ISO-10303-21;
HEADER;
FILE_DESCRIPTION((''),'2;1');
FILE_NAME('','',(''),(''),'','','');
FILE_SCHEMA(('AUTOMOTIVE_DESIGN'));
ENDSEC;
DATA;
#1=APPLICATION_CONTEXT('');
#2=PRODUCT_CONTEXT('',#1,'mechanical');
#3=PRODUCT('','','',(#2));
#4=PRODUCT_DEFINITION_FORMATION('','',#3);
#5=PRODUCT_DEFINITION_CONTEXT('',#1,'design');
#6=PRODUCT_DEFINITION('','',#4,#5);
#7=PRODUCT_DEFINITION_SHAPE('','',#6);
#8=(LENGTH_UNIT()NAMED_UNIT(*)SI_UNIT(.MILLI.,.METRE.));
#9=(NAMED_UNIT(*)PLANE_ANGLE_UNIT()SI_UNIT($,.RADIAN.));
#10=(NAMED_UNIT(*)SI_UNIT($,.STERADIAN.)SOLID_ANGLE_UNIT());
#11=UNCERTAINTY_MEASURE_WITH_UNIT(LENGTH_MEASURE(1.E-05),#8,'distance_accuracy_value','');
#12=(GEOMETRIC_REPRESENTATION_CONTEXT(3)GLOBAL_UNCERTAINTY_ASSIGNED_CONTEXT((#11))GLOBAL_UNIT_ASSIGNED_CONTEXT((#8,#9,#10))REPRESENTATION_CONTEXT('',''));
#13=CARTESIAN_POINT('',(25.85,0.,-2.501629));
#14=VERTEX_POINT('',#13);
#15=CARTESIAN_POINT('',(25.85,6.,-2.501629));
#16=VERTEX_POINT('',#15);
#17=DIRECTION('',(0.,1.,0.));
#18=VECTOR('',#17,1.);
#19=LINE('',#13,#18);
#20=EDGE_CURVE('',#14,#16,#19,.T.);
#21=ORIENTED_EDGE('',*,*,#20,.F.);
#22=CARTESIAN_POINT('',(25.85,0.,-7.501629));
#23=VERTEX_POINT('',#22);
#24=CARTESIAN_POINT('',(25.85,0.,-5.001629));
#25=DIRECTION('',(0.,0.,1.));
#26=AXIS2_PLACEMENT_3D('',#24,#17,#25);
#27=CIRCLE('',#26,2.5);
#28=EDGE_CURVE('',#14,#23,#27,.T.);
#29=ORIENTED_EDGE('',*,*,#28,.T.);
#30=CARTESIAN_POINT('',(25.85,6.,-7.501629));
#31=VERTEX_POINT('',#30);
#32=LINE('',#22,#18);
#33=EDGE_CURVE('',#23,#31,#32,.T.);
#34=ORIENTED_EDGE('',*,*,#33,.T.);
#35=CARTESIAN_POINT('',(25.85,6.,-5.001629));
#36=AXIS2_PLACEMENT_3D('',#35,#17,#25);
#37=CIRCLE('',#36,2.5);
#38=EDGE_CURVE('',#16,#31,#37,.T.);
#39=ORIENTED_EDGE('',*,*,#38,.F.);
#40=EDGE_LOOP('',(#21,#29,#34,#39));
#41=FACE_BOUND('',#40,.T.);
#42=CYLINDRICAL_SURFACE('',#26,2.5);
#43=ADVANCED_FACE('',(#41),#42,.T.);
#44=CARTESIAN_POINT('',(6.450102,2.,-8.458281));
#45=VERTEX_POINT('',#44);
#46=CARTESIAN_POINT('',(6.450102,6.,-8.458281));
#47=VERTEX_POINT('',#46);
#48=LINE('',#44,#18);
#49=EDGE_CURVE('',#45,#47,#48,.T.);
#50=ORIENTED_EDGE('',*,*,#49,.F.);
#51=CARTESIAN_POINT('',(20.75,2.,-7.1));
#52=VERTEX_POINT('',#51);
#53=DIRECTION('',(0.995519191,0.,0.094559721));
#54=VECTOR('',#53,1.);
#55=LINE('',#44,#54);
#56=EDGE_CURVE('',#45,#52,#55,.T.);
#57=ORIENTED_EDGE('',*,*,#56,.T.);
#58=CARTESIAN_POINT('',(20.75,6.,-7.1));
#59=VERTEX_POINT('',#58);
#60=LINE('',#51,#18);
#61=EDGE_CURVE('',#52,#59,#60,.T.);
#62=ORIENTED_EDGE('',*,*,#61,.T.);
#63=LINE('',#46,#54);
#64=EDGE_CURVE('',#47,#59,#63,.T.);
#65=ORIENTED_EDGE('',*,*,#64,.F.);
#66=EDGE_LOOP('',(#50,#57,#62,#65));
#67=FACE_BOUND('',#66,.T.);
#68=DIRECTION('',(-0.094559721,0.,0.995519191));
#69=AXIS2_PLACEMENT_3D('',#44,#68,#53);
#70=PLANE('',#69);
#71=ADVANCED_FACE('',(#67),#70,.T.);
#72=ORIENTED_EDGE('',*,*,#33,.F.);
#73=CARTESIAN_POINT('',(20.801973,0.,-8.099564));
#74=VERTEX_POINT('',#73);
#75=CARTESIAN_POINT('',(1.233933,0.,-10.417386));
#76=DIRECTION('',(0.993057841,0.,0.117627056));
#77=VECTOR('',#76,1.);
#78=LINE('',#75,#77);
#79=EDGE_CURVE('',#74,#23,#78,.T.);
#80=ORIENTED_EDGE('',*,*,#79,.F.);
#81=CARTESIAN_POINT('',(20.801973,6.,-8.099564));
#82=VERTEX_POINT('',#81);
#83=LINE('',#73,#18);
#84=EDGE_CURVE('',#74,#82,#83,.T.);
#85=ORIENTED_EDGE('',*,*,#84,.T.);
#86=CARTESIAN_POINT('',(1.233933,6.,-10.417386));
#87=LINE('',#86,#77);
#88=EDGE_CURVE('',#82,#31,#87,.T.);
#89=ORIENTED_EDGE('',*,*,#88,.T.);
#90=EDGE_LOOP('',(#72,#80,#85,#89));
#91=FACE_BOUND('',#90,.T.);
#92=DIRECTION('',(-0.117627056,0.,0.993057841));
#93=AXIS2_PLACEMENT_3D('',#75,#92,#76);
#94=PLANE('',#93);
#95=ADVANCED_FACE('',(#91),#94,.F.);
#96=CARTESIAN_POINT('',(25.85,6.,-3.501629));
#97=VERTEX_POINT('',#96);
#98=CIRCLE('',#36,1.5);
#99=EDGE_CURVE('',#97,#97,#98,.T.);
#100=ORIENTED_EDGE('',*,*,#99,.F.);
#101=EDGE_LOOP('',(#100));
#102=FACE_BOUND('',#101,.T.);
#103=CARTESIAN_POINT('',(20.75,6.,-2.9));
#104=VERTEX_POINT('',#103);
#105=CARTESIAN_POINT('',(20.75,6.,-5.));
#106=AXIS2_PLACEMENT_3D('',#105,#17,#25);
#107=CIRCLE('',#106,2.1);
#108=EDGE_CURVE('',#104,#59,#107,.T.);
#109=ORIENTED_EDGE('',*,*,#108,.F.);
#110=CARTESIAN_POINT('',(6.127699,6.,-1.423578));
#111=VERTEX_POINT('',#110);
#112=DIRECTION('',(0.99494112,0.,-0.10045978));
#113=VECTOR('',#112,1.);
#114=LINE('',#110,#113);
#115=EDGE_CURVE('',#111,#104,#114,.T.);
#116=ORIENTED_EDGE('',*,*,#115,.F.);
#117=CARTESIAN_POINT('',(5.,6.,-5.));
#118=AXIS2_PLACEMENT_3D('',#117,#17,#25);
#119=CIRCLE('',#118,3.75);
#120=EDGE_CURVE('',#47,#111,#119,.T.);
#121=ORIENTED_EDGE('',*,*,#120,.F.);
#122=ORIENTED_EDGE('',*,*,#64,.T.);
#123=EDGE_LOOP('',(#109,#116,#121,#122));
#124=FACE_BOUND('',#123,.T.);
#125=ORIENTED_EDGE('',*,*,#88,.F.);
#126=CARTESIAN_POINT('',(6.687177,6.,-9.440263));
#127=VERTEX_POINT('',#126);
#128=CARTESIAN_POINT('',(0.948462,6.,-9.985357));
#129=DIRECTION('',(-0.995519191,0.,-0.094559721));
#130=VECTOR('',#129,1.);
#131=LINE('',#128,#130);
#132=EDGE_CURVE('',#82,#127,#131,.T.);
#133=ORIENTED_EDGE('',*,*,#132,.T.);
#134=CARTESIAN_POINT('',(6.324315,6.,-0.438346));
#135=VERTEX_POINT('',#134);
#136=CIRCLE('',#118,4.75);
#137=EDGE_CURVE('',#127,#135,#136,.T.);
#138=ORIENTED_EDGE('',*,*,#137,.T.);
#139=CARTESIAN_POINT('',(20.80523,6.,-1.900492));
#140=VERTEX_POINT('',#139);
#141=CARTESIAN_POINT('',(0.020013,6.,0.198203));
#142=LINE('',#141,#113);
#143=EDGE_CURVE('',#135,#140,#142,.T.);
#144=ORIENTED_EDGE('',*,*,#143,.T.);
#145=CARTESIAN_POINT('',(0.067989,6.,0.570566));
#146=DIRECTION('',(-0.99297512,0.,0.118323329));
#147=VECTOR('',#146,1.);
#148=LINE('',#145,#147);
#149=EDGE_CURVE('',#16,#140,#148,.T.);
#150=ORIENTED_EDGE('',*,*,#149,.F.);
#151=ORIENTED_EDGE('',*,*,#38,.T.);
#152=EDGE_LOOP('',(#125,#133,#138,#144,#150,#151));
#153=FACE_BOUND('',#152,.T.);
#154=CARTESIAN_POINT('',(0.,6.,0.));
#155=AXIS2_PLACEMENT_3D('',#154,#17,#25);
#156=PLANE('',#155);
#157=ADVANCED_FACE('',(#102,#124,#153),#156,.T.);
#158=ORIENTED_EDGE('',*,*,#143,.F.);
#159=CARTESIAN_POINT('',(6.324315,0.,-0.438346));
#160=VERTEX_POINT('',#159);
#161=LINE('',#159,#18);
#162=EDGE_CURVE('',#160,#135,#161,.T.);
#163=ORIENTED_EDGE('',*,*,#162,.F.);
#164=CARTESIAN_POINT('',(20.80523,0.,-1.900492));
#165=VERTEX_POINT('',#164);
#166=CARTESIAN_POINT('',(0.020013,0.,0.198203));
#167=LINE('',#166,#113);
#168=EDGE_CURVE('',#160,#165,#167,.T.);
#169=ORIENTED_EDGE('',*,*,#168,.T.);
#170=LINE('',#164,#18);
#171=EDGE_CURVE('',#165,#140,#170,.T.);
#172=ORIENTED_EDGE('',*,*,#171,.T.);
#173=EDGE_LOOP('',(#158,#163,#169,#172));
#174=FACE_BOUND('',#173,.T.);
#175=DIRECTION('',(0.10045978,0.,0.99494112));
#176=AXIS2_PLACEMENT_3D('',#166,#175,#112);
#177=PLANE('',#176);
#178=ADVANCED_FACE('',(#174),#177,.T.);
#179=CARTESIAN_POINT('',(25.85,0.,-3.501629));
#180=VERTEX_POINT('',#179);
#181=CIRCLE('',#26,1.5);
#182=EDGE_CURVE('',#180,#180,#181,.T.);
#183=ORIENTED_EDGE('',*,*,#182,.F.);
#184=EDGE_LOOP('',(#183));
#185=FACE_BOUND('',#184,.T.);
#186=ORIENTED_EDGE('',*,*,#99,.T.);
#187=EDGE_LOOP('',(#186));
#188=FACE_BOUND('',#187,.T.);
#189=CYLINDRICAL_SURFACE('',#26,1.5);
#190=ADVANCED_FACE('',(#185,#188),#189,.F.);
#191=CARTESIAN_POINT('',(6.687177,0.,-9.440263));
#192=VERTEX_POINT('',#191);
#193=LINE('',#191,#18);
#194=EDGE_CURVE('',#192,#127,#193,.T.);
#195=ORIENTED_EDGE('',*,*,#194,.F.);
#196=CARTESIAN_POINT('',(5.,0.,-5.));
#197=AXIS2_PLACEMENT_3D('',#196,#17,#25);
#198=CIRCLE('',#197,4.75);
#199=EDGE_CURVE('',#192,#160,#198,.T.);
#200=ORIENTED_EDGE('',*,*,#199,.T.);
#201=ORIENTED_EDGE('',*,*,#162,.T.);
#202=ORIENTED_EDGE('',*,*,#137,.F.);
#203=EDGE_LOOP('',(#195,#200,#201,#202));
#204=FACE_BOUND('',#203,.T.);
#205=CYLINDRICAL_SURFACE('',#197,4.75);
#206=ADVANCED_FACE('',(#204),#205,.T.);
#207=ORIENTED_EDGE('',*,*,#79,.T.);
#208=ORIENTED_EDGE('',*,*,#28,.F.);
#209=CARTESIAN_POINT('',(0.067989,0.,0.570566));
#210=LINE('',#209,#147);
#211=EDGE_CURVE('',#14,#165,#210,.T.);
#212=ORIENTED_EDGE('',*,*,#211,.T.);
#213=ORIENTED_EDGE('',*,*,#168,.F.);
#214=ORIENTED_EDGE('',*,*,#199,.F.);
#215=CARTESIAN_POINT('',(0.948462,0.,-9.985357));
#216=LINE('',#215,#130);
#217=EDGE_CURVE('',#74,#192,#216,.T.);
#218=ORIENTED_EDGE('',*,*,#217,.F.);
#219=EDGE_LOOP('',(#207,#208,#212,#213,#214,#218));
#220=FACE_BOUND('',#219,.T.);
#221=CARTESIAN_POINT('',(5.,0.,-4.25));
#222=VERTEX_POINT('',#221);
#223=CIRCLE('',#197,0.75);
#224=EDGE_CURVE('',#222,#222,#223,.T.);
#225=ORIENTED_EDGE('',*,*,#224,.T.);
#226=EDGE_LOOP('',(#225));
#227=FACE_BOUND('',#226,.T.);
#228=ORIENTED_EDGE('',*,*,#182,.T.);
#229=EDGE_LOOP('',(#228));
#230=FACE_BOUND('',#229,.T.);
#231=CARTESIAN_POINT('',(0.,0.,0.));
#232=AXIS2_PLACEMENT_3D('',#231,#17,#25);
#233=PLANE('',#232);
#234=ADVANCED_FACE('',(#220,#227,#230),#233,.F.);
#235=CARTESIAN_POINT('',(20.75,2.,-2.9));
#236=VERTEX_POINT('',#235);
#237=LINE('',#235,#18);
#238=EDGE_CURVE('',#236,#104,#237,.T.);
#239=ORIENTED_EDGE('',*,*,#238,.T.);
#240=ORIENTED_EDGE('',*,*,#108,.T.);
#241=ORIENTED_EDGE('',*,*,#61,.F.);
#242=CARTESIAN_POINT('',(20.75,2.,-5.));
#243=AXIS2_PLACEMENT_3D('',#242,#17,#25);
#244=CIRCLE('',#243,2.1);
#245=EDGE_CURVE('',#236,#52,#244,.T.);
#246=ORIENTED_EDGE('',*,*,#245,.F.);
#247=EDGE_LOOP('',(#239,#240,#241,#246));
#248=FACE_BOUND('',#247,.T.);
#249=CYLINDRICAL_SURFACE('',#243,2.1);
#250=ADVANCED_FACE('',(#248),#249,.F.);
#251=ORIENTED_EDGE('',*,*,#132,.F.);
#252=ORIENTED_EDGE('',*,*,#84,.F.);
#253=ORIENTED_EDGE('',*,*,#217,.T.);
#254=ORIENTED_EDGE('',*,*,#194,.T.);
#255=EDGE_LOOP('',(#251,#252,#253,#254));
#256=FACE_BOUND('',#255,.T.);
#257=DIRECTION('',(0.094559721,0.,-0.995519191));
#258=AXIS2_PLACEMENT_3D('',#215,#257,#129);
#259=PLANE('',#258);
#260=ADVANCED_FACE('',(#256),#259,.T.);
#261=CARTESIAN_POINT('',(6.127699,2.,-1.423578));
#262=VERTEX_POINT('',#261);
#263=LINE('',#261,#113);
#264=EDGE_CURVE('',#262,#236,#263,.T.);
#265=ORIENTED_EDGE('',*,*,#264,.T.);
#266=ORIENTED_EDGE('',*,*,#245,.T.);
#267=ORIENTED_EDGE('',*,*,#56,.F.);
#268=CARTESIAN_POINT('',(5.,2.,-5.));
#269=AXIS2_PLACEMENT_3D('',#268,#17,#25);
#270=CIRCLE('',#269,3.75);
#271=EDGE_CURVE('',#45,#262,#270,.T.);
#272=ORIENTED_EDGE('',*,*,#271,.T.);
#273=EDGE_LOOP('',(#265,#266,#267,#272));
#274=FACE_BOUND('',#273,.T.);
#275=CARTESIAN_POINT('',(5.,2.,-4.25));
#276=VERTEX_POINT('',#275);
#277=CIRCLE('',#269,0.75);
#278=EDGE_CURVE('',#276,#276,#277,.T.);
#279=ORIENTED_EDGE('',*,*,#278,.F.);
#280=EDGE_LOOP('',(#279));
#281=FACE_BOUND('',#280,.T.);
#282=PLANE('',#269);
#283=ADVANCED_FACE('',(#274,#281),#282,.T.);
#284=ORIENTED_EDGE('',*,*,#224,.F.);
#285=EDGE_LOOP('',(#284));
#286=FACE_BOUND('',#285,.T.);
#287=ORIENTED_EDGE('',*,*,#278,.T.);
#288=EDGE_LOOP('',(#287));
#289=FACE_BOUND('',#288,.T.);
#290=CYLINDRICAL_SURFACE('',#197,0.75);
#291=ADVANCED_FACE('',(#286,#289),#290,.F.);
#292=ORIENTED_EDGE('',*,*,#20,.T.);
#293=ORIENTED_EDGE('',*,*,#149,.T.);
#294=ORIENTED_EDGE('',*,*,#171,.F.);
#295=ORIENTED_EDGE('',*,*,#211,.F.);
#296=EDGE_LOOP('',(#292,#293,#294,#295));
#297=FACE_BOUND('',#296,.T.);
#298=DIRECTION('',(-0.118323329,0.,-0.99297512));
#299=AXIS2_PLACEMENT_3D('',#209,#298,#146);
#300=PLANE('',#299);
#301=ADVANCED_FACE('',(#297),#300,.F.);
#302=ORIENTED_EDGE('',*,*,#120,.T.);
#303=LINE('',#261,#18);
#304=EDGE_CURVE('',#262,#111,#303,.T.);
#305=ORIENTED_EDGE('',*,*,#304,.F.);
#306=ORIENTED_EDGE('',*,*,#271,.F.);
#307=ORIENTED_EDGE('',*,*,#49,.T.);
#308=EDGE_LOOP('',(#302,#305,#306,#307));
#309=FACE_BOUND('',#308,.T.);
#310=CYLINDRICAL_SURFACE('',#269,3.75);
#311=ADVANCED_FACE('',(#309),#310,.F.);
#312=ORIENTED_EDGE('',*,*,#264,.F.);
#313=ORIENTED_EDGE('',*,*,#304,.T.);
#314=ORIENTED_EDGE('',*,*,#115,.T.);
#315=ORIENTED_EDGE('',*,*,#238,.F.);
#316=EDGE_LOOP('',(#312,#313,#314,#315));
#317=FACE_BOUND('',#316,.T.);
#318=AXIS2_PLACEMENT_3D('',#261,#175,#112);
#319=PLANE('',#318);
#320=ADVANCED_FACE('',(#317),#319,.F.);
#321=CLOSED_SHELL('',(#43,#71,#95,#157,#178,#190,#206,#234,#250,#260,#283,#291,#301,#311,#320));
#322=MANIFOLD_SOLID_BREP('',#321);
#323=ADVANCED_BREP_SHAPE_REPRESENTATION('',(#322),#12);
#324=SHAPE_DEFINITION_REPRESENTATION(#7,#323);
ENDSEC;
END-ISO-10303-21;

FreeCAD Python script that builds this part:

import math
import FreeCAD as App
import Part
import Sketcher
from FreeCAD import Vector

doc = App.newDocument("Part")
params = doc.addObject("Spreadsheet::Sheet", "Params")
for row, (alias, value) in enumerate([
    ("sketch1_width", "30 mm"),
    ("sketch1_height", "10 mm"),
    ("pad1_length", "6 mm"),
    ("sketch2_radius", "2.1 mm"),
    ("sketch2_radius2", "3.75 mm"),
    ("pocket1_length", "4 mm"),
    ("sketch3_radius", "2.5 mm"),
    ("sketch3_width", "30 mm"),
    ("sketch3_height", "10 mm"),
    ("sketch3_radius2", "4.75 mm"),
    ("sketch4_diameter", "3 mm"),
    ("sketch5_diameter", "1.5 mm"),
], start=1):
    params.set(f"A{row}", alias)
    params.set(f"B{row}", "=" + value)
    params.setAlias(f"B{row}", alias)

body = doc.addObject("PartDesign::Body", "Body")

sketch1 = body.newObject("Sketcher::SketchObject", "Sketch")
sketch1.AttachmentSupport = (doc.getObject("XZ_Plane"), [""])
sketch1.MapMode = "FlatFace"
sketch1.addGeometry(Part.LineSegment(Vector(0, -10, 0), Vector(0, 0, 0)), False)
sketch1.addGeometry(Part.LineSegment(Vector(0, 0, 0), Vector(30, 0, 0)), False)
sketch1.addGeometry(Part.LineSegment(Vector(30, 0, 0), Vector(30, -10, 0)), False)
sketch1.addGeometry(Part.LineSegment(Vector(30, -10, 0), Vector(0, -10, 0)), False)
sketch1.addConstraint(Sketcher.Constraint("Coincident", 0, 2, 1, 1))
sketch1.addConstraint(Sketcher.Constraint("Coincident", 1, 2, 2, 1))
sketch1.addConstraint(Sketcher.Constraint("Coincident", 2, 2, 3, 1))
sketch1.addConstraint(Sketcher.Constraint("Coincident", 3, 2, 0, 1))
sketch1.addConstraint(Sketcher.Constraint("Vertical", 0))
sketch1.addConstraint(Sketcher.Constraint("Horizontal", 1))
sketch1.addConstraint(Sketcher.Constraint("Vertical", 2))
sketch1.addConstraint(Sketcher.Constraint("Horizontal", 3))
sketch1.addConstraint(Sketcher.Constraint("Coincident", 0, 2, -1, 1))
sketch1.addConstraint(Sketcher.Constraint("DistanceX", 1, 1, 1, 2, 30.0))
sketch1.addConstraint(Sketcher.Constraint("DistanceY", 0, 1, 0, 2, 10.0))
sketch1.setExpression("Constraints[9]", "Params.sketch1_width")
sketch1.setExpression("Constraints[10]", "Params.sketch1_height")
pad1 = body.newObject("PartDesign::Pad", "Pad")
pad1.Profile = sketch1
pad1.setExpression("Length", "Params.pad1_length")
pad1.Reversed = True

sketch2 = body.newObject("Sketcher::SketchObject", "Sketch001")
sketch2.AttachmentSupport = (doc.getObject("XZ_Plane"), [""])
sketch2.MapMode = "FlatFace"
sketch2.AttachmentOffset = App.Placement(Vector(0, 0, -6), App.Rotation())
sketch2.addGeometry(Part.LineSegment(Vector(6.1, -1.4, 0), Vector(20.8, -2.9, 0)), False)
sketch2.addGeometry(Part.ArcOfCircle(Part.Circle(Vector(20.8, -5, 0), Vector(0, 0, 1), 2.1), math.radians(-90), math.radians(90)), False)
sketch2.addGeometry(Part.LineSegment(Vector(20.8, -7.1, 0), Vector(6.5, -8.5, 0)), False)
sketch2.addGeometry(Part.ArcOfCircle(Part.Circle(Vector(5, -5, 0), Vector(0, 0, 1), 3.8), math.radians(72), math.radians(293)), False)
sketch2.addConstraint(Sketcher.Constraint("Coincident", 0, 2, 1, 2))
sketch2.addConstraint(Sketcher.Constraint("Coincident", 1, 1, 2, 1))
sketch2.addConstraint(Sketcher.Constraint("Coincident", 2, 2, 3, 2))
sketch2.addConstraint(Sketcher.Constraint("Coincident", 3, 1, 0, 1))
sketch2.addConstraint(Sketcher.Constraint("Horizontal", 1, 3, 3, 3))
sketch2.addConstraint(Sketcher.Constraint("Vertical", 1, 3, 0, 2))
sketch2.addConstraint(Sketcher.Constraint("Vertical", 0, 2, 1, 1))
sketch2.addConstraint(Sketcher.Constraint("Radius", 1, 2.1))
sketch2.addConstraint(Sketcher.Constraint("Radius", 3, 3.75))
sketch2.addConstraint(Sketcher.Constraint("DistanceY", 1, 3, -1, 1, 5.0))
sketch2.addConstraint(Sketcher.Constraint("DistanceX", -1, 1, 3, 3, 5.0))
sketch2.addConstraint(Sketcher.Constraint("DistanceX", -1, 1, 1, 3, 20.75))
sketch2.addConstraint(Sketcher.Constraint("DistanceX", -1, 1, 2, 2, 6.450102))
sketch2.addConstraint(Sketcher.Constraint("DistanceX", -1, 1, 3, 1, 6.127699))
sketch2.setExpression("Constraints[7]", "Params.sketch2_radius")
sketch2.setExpression("Constraints[8]", "Params.sketch2_radius2")
pocket1 = body.newObject("PartDesign::Pocket", "Pocket")
pocket1.Profile = sketch2
pocket1.setExpression("Length", "Params.pocket1_length")
pocket1.Reversed = True

sketch3 = body.newObject("Sketcher::SketchObject", "Sketch002")
sketch3.AttachmentSupport = (doc.getObject("XZ_Plane"), [""])
sketch3.MapMode = "FlatFace"
sketch3.AttachmentOffset = App.Placement(Vector(0, 0, -6), App.Rotation())
sketch3.addGeometry(Part.LineSegment(Vector(0, -10, 0), Vector(0, 0, 0)), False)
sketch3.addGeometry(Part.LineSegment(Vector(0, 0, 0), Vector(30, 0, 0)), False)
sketch3.addGeometry(Part.LineSegment(Vector(30, 0, 0), Vector(30, -10, 0)), False)
sketch3.addGeometry(Part.LineSegment(Vector(30, -10, 0), Vector(0, -10, 0)), False)
sketch3.addGeometry(Part.LineSegment(Vector(6.7, -9.4, 0), Vector(20.8, -8.1, 0)), False)
sketch3.addGeometry(Part.LineSegment(Vector(20.8, -8.1, 0), Vector(25.8, -7.5, 0)), False)
sketch3.addGeometry(Part.ArcOfCircle(Part.Circle(Vector(25.8, -5, 0), Vector(0, 0, 1), 2.5), math.radians(-90), math.radians(90)), False)
sketch3.addGeometry(Part.LineSegment(Vector(25.8, -2.5, 0), Vector(20.8, -1.9, 0)), False)
sketch3.addGeometry(Part.LineSegment(Vector(20.8, -1.9, 0), Vector(6.3, -0.4, 0)), False)
sketch3.addGeometry(Part.ArcOfCircle(Part.Circle(Vector(5, -5, 0), Vector(0, 0, 1), 4.8), math.radians(74), math.radians(291)), False)
sketch3.addConstraint(Sketcher.Constraint("Coincident", 0, 2, 1, 1))
sketch3.addConstraint(Sketcher.Constraint("Coincident", 1, 2, 2, 1))
sketch3.addConstraint(Sketcher.Constraint("Coincident", 2, 2, 3, 1))
sketch3.addConstraint(Sketcher.Constraint("Coincident", 3, 2, 0, 1))
sketch3.addConstraint(Sketcher.Constraint("Coincident", 4, 2, 5, 1))
sketch3.addConstraint(Sketcher.Constraint("Coincident", 5, 2, 6, 1))
sketch3.addConstraint(Sketcher.Constraint("Coincident", 6, 2, 7, 1))
sketch3.addConstraint(Sketcher.Constraint("Coincident", 7, 2, 8, 1))
sketch3.addConstraint(Sketcher.Constraint("Coincident", 8, 2, 9, 1))
sketch3.addConstraint(Sketcher.Constraint("Coincident", 9, 2, 4, 1))
sketch3.addConstraint(Sketcher.Constraint("Vertical", 0))
sketch3.addConstraint(Sketcher.Constraint("Horizontal", 1))
sketch3.addConstraint(Sketcher.Constraint("Vertical", 2))
sketch3.addConstraint(Sketcher.Constraint("Horizontal", 3))
sketch3.addConstraint(Sketcher.Constraint("Coincident", 0, 2, -1, 1))
sketch3.addConstraint(Sketcher.Constraint("Vertical", 6, 3, 5, 2))
sketch3.addConstraint(Sketcher.Constraint("Vertical", 5, 2, 6, 2))
sketch3.addConstraint(Sketcher.Constraint("Radius", 6, 2.5))
sketch3.addConstraint(Sketcher.Constraint("DistanceX", 1, 1, 1, 2, 30.0))
sketch3.addConstraint(Sketcher.Constraint("DistanceY", 0, 1, 0, 2, 10.0))
sketch3.addConstraint(Sketcher.Constraint("Radius", 9, 4.75))
sketch3.addConstraint(Sketcher.Constraint("DistanceX", -1, 1, 9, 3, 5.0))
sketch3.addConstraint(Sketcher.Constraint("DistanceY", 9, 3, -1, 1, 5.0))
sketch3.addConstraint(Sketcher.Constraint("DistanceX", -1, 1, 6, 3, 25.85))
sketch3.addConstraint(Sketcher.Constraint("DistanceY", 9, 2, 4, 2, 1.340699))
sketch3.addConstraint(Sketcher.Constraint("Distance", 7, 5.080459))
sketch3.addConstraint(Sketcher.Constraint("DistanceY", 6, 3, -1, 1, 5.001629))
sketch3.addConstraint(Sketcher.Constraint("DistanceX", -1, 1, 7, 2, 20.80523))
sketch3.addConstraint(Sketcher.Constraint("DistanceX", 8, 2, 4, 2, 14.477659))
sketch3.addConstraint(Sketcher.Constraint("DistanceY", 4, 2, 8, 2, 7.661219))
sketch3.addConstraint(Sketcher.Constraint("Distance", 4, 14.178327))
sketch3.setExpression("Constraints[17]", "Params.sketch3_radius")
sketch3.setExpression("Constraints[18]", "Params.sketch3_width")
sketch3.setExpression("Constraints[19]", "Params.sketch3_height")
sketch3.setExpression("Constraints[20]", "Params.sketch3_radius2")
pocket2 = body.newObject("PartDesign::Pocket", "Pocket001")
pocket2.Profile = sketch3
pocket2.Type = "ThroughAll"
pocket2.Reversed = True

sketch4 = body.newObject("Sketcher::SketchObject", "Sketch003")
sketch4.AttachmentSupport = (doc.getObject("XZ_Plane"), [""])
sketch4.MapMode = "FlatFace"
sketch4.AttachmentOffset = App.Placement(Vector(0, 0, -6), App.Rotation())
sketch4.addGeometry(Part.Circle(Vector(25.8, -5, 0), Vector(0, 0, 1), 1.5), False)
sketch4.addConstraint(Sketcher.Constraint("Diameter", 0, 3.0))
sketch4.addConstraint(Sketcher.Constraint("DistanceX", -1, 1, 0, 3, 25.85))
sketch4.addConstraint(Sketcher.Constraint("DistanceY", 0, 3, -1, 1, 5.001629))
sketch4.setExpression("Constraints[0]", "Params.sketch4_diameter")
pocket3 = body.newObject("PartDesign::Pocket", "Pocket002")
pocket3.Profile = sketch4
pocket3.Type = "ThroughAll"
pocket3.Reversed = True

sketch5 = body.newObject("Sketcher::SketchObject", "Sketch004")
sketch5.AttachmentSupport = (doc.getObject("XZ_Plane"), [""])
sketch5.MapMode = "FlatFace"
sketch5.AttachmentOffset = App.Placement(Vector(0, 0, -2), App.Rotation())
sketch5.addGeometry(Part.Circle(Vector(5, -5, 0), Vector(0, 0, 1), 0.8), False)
sketch5.addConstraint(Sketcher.Constraint("Diameter", 0, 1.5))
sketch5.addConstraint(Sketcher.Constraint("DistanceX", -1, 1, 0, 3, 5.0))
sketch5.addConstraint(Sketcher.Constraint("DistanceY", 0, 3, -1, 1, 5.0))
sketch5.setExpression("Constraints[0]", "Params.sketch5_diameter")
pocket4 = body.newObject("PartDesign::Pocket", "Pocket003")
pocket4.Profile = sketch5
pocket4.Type = "ThroughAll"
pocket4.Reversed = True

doc.recompute()
